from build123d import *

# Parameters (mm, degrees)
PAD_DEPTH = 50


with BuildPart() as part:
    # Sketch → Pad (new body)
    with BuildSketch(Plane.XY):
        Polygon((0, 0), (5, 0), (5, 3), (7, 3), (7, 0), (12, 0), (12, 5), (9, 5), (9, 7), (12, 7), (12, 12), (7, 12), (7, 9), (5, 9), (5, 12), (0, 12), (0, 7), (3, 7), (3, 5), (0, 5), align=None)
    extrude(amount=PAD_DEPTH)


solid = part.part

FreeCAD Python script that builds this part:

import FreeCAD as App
import Part
import Sketcher
from FreeCAD import Vector
Q = App.Units.Quantity

doc = App.newDocument("Part")
body = doc.addObject("PartDesign::Body", "Body")

# Sketch on XY plane
sketch1 = doc.addObject("Sketcher::SketchObject", "Sketch")
body.addObject(sketch1)
sketch1.AttachmentSupport = (doc.XY_Plane, [""])
sketch1.MapMode = "FlatFace"
sketch1.addGeometry([
    Part.LineSegment(Vector(0, 0, 0), Vector(5, 0, 0)),  # 0
    Part.LineSegment(Vector(5, 0, 0), Vector(5, 3, 0)),  # 1
    Part.LineSegment(Vector(5, 3, 0), Vector(7, 3, 0)),  # 2
    Part.LineSegment(Vector(7, 3, 0), Vector(7, 0, 0)),  # 3
    Part.LineSegment(Vector(7, 0, 0), Vector(12, 0, 0)),  # 4
    Part.LineSegment(Vector(12, 0, 0), Vector(12, 5, 0)),  # 5
    Part.LineSegment(Vector(12, 5, 0), Vector(9, 5, 0)),  # 6
    Part.LineSegment(Vector(9, 5, 0), Vector(9, 7, 0)),  # 7
    Part.LineSegment(Vector(9, 7, 0), Vector(12, 7, 0)),  # 8
    Part.LineSegment(Vector(12, 7, 0), Vector(12, 12, 0)),  # 9
    Part.LineSegment(Vector(12, 12, 0), Vector(7, 12, 0)),  # 10
    Part.LineSegment(Vector(7, 12, 0), Vector(7, 9, 0)),  # 11
    Part.LineSegment(Vector(7, 9, 0), Vector(5, 9, 0)),  # 12
    Part.LineSegment(Vector(5, 9, 0), Vector(5, 12, 0)),  # 13
    Part.LineSegment(Vector(5, 12, 0), Vector(0, 12, 0)),  # 14
    Part.LineSegment(Vector(0, 12, 0), Vector(0, 7, 0)),  # 15
    Part.LineSegment(Vector(0, 7, 0), Vector(3, 7, 0)),  # 16
    Part.LineSegment(Vector(3, 7, 0), Vector(3, 5, 0)),  # 17
    Part.LineSegment(Vector(3, 5, 0), Vector(0, 5, 0)),  # 18
    Part.LineSegment(Vector(0, 5, 0), Vector(0, 0, 0)),  # 19
], False)
sketch1.addConstraint([
    Sketcher.Constraint("Coincident", 0, 2, 1, 1),
    Sketcher.Constraint("Coincident", 1, 2, 2, 1),
    Sketcher.Constraint("Coincident", 2, 2, 3, 1),
    Sketcher.Constraint("Coincident", 3, 2, 4, 1),
    Sketcher.Constraint("Coincident", 4, 2, 5, 1),
    Sketcher.Constraint("Coincident", 5, 2, 6, 1),
    Sketcher.Constraint("Coincident", 6, 2, 7, 1),
    Sketcher.Constraint("Coincident", 7, 2, 8, 1),
    Sketcher.Constraint("Coincident", 8, 2, 9, 1),
    Sketcher.Constraint("Coincident", 9, 2, 10, 1),
    Sketcher.Constraint("Coincident", 10, 2, 11, 1),
    Sketcher.Constraint("Coincident", 11, 2, 12, 1),
    Sketcher.Constraint("Coincident", 12, 2, 13, 1),
    Sketcher.Constraint("Coincident", 13, 2, 14, 1),
    Sketcher.Constraint("Coincident", 14, 2, 15, 1),
    Sketcher.Constraint("Coincident", 15, 2, 16, 1),
    Sketcher.Constraint("Coincident", 16, 2, 17, 1),
    Sketcher.Constraint("Coincident", 17, 2, 18, 1),
    Sketcher.Constraint("Coincident", 18, 2, 19, 1),
    Sketcher.Constraint("Coincident", 19, 2, 0, 1),
    Sketcher.Constraint("Horizontal", 0),
    Sketcher.Constraint("Vertical", 1),
    Sketcher.Constraint("Horizontal", 2),
    Sketcher.Constraint("Vertical", 3),
    Sketcher.Constraint("Horizontal", 4),
    Sketcher.Constraint("Vertical", 5),
    Sketcher.Constraint("Horizontal", 6),
    Sketcher.Constraint("Vertical", 7),
    Sketcher.Constraint("Horizontal", 8),
    Sketcher.Constraint("Vertical", 9),
    Sketcher.Constraint("Horizontal", 10),
    Sketcher.Constraint("Vertical", 11),
    Sketcher.Constraint("Horizontal", 12),
    Sketcher.Constraint("Vertical", 13),
    Sketcher.Constraint("Horizontal", 14),
    Sketcher.Constraint("Vertical", 15),
    Sketcher.Constraint("Horizontal", 16),
    Sketcher.Constraint("Vertical", 17),
    Sketcher.Constraint("Horizontal", 18),
    Sketcher.Constraint("Vertical", 19),
    Sketcher.Constraint("Coincident", 19, 2, -1, 1),
    Sketcher.Constraint("PointOnObject", 3, 2, -1),
    Sketcher.Constraint("PointOnObject", 14, 2, -2),
    Sketcher.Constraint("Horizontal", 10, 2, 13, 2),
    Sketcher.Constraint("Horizontal", 8, 2, 15, 2),
    Sketcher.Constraint("Horizontal", 6, 2, 17, 2),
    Sketcher.Constraint("Vertical", 5, 2, 8, 2),
    Sketcher.Constraint("Vertical", 3, 2, 10, 2),
    Sketcher.Constraint("Vertical", 1, 2, 12, 2),
    Sketcher.Constraint("Equal", 0, 4),
    Sketcher.Constraint("Equal", 8, 16),
    Sketcher.Constraint("Equal", 18, 1),
    Sketcher.Constraint("Equal", 14, 5),
    Sketcher.Constraint("Equal", 12, 7),
    Sketcher.Constraint("Equal", 5, 9),
    Sketcher.Constraint("Equal", 3, 11),
    Sketcher.Constraint("DistanceX", 0, 1, 0, 2, Q("5 mm")),
    Sketcher.Constraint("DistanceX", 2, 1, 2, 2, Q("2 mm")),
    Sketcher.Constraint("DistanceX", 6, 2, 6, 1, Q("3 mm")),
])
pad1 = doc.addObject("PartDesign::Pad", "Pad")
body.addObject(pad1)
pad1.Profile = sketch1
pad1.Length = 50

doc.recompute()
